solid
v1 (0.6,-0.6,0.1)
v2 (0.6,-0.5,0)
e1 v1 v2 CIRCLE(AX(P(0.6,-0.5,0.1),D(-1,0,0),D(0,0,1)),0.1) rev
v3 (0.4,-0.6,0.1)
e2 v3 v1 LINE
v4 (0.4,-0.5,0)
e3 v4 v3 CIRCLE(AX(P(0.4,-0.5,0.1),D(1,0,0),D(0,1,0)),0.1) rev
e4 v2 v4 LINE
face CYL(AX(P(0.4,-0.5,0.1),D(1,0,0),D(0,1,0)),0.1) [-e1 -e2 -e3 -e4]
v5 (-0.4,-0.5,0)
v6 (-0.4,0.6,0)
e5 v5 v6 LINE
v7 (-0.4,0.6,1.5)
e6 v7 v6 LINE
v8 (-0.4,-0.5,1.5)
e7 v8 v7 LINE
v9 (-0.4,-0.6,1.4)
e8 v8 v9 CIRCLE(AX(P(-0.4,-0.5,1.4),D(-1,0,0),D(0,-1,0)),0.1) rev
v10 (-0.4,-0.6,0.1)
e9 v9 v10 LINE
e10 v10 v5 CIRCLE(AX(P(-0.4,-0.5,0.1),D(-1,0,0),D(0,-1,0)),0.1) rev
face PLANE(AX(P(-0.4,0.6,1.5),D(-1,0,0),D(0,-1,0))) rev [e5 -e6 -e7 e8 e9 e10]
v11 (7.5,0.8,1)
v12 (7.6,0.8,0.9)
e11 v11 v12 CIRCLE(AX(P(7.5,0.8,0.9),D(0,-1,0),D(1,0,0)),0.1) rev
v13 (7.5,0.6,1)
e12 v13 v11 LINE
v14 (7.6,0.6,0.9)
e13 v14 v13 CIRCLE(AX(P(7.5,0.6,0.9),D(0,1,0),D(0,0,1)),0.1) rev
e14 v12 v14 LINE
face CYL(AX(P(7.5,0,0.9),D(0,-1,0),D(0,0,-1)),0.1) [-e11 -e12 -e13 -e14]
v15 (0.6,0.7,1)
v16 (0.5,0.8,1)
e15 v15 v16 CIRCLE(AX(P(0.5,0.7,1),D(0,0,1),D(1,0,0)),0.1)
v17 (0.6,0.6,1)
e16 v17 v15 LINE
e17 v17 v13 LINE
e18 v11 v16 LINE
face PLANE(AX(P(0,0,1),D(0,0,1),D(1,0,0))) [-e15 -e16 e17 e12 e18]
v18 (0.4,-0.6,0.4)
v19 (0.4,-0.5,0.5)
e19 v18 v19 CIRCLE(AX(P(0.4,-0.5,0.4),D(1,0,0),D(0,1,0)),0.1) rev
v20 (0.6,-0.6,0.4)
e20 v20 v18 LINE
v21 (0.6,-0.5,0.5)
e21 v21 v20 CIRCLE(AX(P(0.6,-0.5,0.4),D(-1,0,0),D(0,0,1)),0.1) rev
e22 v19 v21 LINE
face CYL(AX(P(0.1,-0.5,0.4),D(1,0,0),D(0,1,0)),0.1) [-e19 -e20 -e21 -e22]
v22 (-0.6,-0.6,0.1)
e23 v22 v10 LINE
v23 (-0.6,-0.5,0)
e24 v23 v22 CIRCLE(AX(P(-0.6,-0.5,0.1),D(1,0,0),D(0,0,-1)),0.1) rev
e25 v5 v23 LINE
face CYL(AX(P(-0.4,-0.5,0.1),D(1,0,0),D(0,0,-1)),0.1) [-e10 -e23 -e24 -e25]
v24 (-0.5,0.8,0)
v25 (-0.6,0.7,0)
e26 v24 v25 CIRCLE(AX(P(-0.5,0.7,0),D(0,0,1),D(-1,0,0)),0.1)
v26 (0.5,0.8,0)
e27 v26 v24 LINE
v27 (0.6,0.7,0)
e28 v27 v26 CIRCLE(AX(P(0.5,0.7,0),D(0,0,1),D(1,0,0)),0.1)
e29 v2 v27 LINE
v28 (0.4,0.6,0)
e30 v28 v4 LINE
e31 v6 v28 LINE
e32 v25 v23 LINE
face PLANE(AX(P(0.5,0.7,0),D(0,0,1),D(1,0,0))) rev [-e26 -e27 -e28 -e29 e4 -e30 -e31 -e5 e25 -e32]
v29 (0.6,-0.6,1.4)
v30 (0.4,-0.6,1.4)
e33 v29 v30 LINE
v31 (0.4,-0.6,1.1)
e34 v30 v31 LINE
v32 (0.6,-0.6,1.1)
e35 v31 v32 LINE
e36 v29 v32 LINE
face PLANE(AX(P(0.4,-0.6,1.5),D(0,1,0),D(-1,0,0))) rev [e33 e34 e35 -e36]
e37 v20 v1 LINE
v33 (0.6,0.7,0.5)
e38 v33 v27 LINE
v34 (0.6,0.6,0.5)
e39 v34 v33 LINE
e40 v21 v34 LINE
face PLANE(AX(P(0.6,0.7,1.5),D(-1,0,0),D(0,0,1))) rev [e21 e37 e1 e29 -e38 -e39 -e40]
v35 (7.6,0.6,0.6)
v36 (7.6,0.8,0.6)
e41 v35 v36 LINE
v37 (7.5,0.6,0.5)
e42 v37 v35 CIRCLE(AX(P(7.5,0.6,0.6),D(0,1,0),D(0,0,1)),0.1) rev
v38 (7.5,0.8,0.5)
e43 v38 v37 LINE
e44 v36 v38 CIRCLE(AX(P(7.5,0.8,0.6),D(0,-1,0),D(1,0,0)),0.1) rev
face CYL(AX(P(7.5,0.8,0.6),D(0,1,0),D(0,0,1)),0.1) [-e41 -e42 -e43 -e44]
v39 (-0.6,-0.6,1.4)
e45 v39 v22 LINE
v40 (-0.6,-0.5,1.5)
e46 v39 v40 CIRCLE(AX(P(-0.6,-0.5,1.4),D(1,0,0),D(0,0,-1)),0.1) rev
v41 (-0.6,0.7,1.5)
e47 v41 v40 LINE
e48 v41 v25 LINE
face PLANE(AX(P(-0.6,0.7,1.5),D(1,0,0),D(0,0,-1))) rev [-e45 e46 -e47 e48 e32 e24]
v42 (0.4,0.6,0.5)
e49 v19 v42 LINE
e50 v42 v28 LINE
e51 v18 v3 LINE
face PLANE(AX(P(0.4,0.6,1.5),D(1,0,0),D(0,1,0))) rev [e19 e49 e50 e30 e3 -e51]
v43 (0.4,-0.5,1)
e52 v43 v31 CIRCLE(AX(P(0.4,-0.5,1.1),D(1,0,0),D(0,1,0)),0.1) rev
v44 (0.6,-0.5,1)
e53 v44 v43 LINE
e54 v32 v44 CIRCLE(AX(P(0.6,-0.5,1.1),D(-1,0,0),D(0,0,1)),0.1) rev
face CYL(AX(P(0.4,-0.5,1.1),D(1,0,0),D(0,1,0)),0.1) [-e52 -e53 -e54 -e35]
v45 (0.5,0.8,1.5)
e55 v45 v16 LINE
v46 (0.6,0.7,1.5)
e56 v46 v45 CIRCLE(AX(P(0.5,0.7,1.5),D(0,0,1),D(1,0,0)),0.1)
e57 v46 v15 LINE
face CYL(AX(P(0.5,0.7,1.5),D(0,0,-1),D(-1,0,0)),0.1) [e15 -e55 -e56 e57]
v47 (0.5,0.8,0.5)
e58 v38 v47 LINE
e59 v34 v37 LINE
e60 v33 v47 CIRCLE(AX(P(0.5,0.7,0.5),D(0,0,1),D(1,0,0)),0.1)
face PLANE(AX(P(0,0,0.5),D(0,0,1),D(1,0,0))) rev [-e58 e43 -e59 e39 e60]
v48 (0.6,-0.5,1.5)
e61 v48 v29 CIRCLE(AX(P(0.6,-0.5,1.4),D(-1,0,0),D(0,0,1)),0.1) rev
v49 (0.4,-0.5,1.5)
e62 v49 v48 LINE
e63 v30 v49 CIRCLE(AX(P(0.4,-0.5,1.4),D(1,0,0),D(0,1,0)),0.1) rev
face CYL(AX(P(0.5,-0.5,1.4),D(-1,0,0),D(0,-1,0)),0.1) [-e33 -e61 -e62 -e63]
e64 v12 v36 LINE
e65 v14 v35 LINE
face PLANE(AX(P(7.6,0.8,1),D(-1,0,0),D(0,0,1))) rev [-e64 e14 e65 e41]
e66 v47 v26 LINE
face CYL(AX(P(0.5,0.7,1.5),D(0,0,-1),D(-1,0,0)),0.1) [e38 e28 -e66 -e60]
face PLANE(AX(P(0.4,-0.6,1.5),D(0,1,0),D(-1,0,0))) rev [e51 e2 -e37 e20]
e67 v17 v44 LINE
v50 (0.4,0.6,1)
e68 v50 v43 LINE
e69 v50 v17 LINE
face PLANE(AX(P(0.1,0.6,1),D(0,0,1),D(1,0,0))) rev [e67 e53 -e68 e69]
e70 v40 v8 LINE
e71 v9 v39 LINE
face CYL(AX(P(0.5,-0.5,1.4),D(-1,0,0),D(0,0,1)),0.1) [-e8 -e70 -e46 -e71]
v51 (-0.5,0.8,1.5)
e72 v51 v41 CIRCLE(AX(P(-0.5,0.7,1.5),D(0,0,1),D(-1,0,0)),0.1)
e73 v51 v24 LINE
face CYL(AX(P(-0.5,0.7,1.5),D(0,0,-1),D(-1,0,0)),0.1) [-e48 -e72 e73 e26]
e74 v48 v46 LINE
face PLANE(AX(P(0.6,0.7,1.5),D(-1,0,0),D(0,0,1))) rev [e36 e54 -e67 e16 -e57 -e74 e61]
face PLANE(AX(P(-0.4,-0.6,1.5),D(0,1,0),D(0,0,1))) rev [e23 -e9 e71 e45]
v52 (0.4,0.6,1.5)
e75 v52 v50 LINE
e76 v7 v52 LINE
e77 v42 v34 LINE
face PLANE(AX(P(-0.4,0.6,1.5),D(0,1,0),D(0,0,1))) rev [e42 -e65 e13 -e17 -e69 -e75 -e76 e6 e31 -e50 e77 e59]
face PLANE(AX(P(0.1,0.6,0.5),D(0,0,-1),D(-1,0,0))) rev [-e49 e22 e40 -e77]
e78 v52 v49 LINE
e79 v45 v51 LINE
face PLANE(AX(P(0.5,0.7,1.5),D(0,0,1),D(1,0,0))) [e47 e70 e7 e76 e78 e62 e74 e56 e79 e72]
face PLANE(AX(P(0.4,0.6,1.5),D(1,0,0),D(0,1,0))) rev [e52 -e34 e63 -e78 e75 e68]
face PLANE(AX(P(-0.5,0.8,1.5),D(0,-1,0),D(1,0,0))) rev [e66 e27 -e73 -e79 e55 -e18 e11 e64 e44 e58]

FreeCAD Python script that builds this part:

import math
import FreeCAD as App
import Part
import Sketcher
from FreeCAD import Vector
Q = App.Units.Quantity


def edges_at(feature, points):
    """Names of the edges that pass closest to the given points."""
    edges = feature.Shape.Edges
    near = lambda p: min(range(len(edges)), key=lambda i: edges[i].distToShape(Part.Vertex(*p))[0])
    return sorted({f"Edge{near(p) + 1}" for p in points})

doc = App.newDocument("Part")
body = doc.addObject("PartDesign::Body", "Body")

sketch1 = body.newObject("Sketcher::SketchObject", "Sketch")
sketch1.AttachmentSupport = (doc.getObject("XY_Plane"), [""])
sketch1.MapMode = "FlatFace"
sketch1.addGeometry(Part.LineSegment(Vector(-0.6, 0.7, 0), Vector(-0.6, -0.6, 0)), False)
sketch1.addGeometry(Part.LineSegment(Vector(-0.6, -0.6, 0), Vector(-0.4, -0.6, 0)), False)
sketch1.addGeometry(Part.LineSegment(Vector(-0.4, -0.6, 0), Vector(-0.4, 0.6, 0)), False)
sketch1.addGeometry(Part.LineSegment(Vector(-0.4, 0.6, 0), Vector(0.4, 0.6, 0)), False)
sketch1.addGeometry(Part.LineSegment(Vector(0.4, 0.6, 0), Vector(0.4, -0.6, 0)), False)
sketch1.addGeometry(Part.LineSegment(Vector(0.4, -0.6, 0), Vector(0.6, -0.6, 0)), False)
sketch1.addGeometry(Part.LineSegment(Vector(0.6, -0.6, 0), Vector(0.6, 0.7, 0)), False)
sketch1.addGeometry(Part.ArcOfCircle(Part.Circle(Vector(0.5, 0.7, 0), Vector(0, 0, 1), 0.1), math.radians(0), math.radians(90)), False)
sketch1.addGeometry(Part.LineSegment(Vector(0.5, 0.8, 0), Vector(-0.5, 0.8, 0)), False)
sketch1.addGeometry(Part.ArcOfCircle(Part.Circle(Vector(-0.5, 0.7, 0), Vector(0, 0, 1), 0.1), math.radians(90), math.radians(180)), False)
sketch1.addConstraint(Sketcher.Constraint("Coincident", 0, 2, 1, 1))
sketch1.addConstraint(Sketcher.Constraint("Coincident", 1, 2, 2, 1))
sketch1.addConstraint(Sketcher.Constraint("Coincident", 2, 2, 3, 1))
sketch1.addConstraint(Sketcher.Constraint("Coincident", 3, 2, 4, 1))
sketch1.addConstraint(Sketcher.Constraint("Coincident", 4, 2, 5, 1))
sketch1.addConstraint(Sketcher.Constraint("Coincident", 5, 2, 6, 1))
sketch1.addConstraint(Sketcher.Constraint("Tangent", 6, 2, 7, 1))
sketch1.addConstraint(Sketcher.Constraint("Tangent", 7, 2, 8, 1))
sketch1.addConstraint(Sketcher.Constraint("Tangent", 8, 2, 9, 1))
sketch1.addConstraint(Sketcher.Constraint("Tangent", 9, 2, 0, 1))
sketch1.addConstraint(Sketcher.Constraint("Vertical", 0))
sketch1.addConstraint(Sketcher.Constraint("Horizontal", 1))
sketch1.addConstraint(Sketcher.Constraint("Vertical", 2))
sketch1.addConstraint(Sketcher.Constraint("Horizontal", 3))
sketch1.addConstraint(Sketcher.Constraint("Vertical", 4))
sketch1.addConstraint(Sketcher.Constraint("Horizontal", 5))
sketch1.addConstraint(Sketcher.Constraint("Vertical", 6))
sketch1.addConstraint(Sketcher.Constraint("Horizontal", 8))
sketch1.addConstraint(Sketcher.Constraint("Equal", 7, 9))
sketch1.addConstraint(Sketcher.Constraint("Symmetric", 1, 2, 3, 2, -1, 1))
sketch1.addConstraint(Sketcher.Constraint("Symmetric", 0, 2, 5, 2, -2))
sketch1.addConstraint(Sketcher.Constraint("Radius", 7, Q("0.1 mm")))
sketch1.addConstraint(Sketcher.Constraint("DistanceX", 8, 2, 8, 1, Q("1 mm")))
sketch1.addConstraint(Sketcher.Constraint("DistanceX", 1, 1, 1, 2, Q("0.2 mm")))
sketch1.addConstraint(Sketcher.Constraint("DistanceY", 0, 2, 0, 1, Q("1.3 mm")))
sketch1.addConstraint(Sketcher.Constraint("DistanceY", 2, 1, 2, 2, Q("1.2 mm")))
pad1 = body.newObject("PartDesign::Pad", "Pad")
pad1.Profile = sketch1
pad1.Length = 1.5

sketch2 = body.newObject("Sketcher::SketchObject", "Sketch001")
sketch2.AttachmentSupport = (doc.getObject("XY_Plane"), [""])
sketch2.MapMode = "FlatFace"
sketch2.AttachmentOffset = App.Placement(Vector(0, 0, 0.5), App.Rotation())
sketch2.addGeometry(Part.LineSegment(Vector(0, 0.8, 0), Vector(0, 0.6, 0)), False)
sketch2.addGeometry(Part.LineSegment(Vector(0, 0.6, 0), Vector(7.6, 0.6, 0)), False)
sketch2.addGeometry(Part.LineSegment(Vector(7.6, 0.6, 0), Vector(7.6, 0.8, 0)), False)
sketch2.addGeometry(Part.LineSegment(Vector(7.6, 0.8, 0), Vector(0, 0.8, 0)), False)
sketch2.addConstraint(Sketcher.Constraint("Coincident", 0, 2, 1, 1))
sketch2.addConstraint(Sketcher.Constraint("Coincident", 1, 2, 2, 1))
sketch2.addConstraint(Sketcher.Constraint("Coincident", 2, 2, 3, 1))
sketch2.addConstraint(Sketcher.Constraint("Coincident", 3, 2, 0, 1))
sketch2.addConstraint(Sketcher.Constraint("Vertical", 0))
sketch2.addConstraint(Sketcher.Constraint("Horizontal", 1))
sketch2.addConstraint(Sketcher.Constraint("Vertical", 2))
sketch2.addConstraint(Sketcher.Constraint("Horizontal", 3))
sketch2.addConstraint(Sketcher.Constraint("PointOnObject", 0, 2, -2))
sketch2.addConstraint(Sketcher.Constraint("DistanceX", 1, 1, 1, 2, Q("7.6 mm")))
sketch2.addConstraint(Sketcher.Constraint("DistanceY", 0, 2, 0, 1, Q("0.2 mm")))
sketch2.addConstraint(Sketcher.Constraint("DistanceY", -1, 1, 0, 2, Q("0.6 mm")))
pad2 = body.newObject("PartDesign::Pad", "Pad001")
pad2.Profile = sketch2
pad2.Length = 0.5

sketch3 = body.newObject("Sketcher::SketchObject", "Sketch002")
sketch3.AttachmentSupport = (doc.getObject("YZ_Plane"), [""])
sketch3.MapMode = "FlatFace"
sketch3.AttachmentOffset = App.Placement(Vector(0, 0, 0.6), App.Rotation())
sketch3.addGeometry(Part.LineSegment(Vector(0.6, 1, 0), Vector(-0.6, 1, 0)), False)
sketch3.addGeometry(Part.LineSegment(Vector(-0.6, 1, 0), Vector(-0.6, 0.5, 0)), False)
sketch3.addGeometry(Part.LineSegment(Vector(-0.6, 0.5, 0), Vector(0.6, 0.5, 0)), False)
sketch3.addGeometry(Part.LineSegment(Vector(0.6, 0.5, 0), Vector(0.6, 1, 0)), False)
sketch3.addConstraint(Sketcher.Constraint("Coincident", 0, 2, 1, 1))
sketch3.addConstraint(Sketcher.Constraint("Coincident", 1, 2, 2, 1))
sketch3.addConstraint(Sketcher.Constraint("Coincident", 2, 2, 3, 1))
sketch3.addConstraint(Sketcher.Constraint("Coincident", 3, 2, 0, 1))
sketch3.addConstraint(Sketcher.Constraint("Horizontal", 0))
sketch3.addConstraint(Sketcher.Constraint("Vertical", 1))
sketch3.addConstraint(Sketcher.Constraint("Horizontal", 2))
sketch3.addConstraint(Sketcher.Constraint("Vertical", 3))
sketch3.addConstraint(Sketcher.Constraint("DistanceX", 0, 2, 0, 1, Q("1.2 mm")))
sketch3.addConstraint(Sketcher.Constraint("DistanceY", 1, 2, 1, 1, Q("0.5 mm")))
sketch3.addConstraint(Sketcher.Constraint("DistanceY", -1, 1, 0, 2, Q("1 mm")))
sketch3.addConstraint(Sketcher.Constraint("DistanceX", 0, 2, -1, 1, Q("0.6 mm")))
pocket1 = body.newObject("PartDesign::Pocket", "Pocket")
pocket1.Profile = sketch3
pocket1.Length = 0.5
doc.recompute()

fillet = body.newObject("PartDesign::Fillet", "Fillet")
fillet.Base = (pocket1, edges_at(pocket1, [
    (-0.5, -0.6, 0),
    (0.5, -0.6, 0),
    (-0.5, -0.6, 1.5),
    (7.6, 0.7, 1),
    (7.6, 0.7, 0.5),
    (0.5, -0.6, 0.5),
    (0.5, -0.6, 1),
    (0.5, -0.6, 1.5),
]))
fillet.Radius = 0.1

doc.recompute()
